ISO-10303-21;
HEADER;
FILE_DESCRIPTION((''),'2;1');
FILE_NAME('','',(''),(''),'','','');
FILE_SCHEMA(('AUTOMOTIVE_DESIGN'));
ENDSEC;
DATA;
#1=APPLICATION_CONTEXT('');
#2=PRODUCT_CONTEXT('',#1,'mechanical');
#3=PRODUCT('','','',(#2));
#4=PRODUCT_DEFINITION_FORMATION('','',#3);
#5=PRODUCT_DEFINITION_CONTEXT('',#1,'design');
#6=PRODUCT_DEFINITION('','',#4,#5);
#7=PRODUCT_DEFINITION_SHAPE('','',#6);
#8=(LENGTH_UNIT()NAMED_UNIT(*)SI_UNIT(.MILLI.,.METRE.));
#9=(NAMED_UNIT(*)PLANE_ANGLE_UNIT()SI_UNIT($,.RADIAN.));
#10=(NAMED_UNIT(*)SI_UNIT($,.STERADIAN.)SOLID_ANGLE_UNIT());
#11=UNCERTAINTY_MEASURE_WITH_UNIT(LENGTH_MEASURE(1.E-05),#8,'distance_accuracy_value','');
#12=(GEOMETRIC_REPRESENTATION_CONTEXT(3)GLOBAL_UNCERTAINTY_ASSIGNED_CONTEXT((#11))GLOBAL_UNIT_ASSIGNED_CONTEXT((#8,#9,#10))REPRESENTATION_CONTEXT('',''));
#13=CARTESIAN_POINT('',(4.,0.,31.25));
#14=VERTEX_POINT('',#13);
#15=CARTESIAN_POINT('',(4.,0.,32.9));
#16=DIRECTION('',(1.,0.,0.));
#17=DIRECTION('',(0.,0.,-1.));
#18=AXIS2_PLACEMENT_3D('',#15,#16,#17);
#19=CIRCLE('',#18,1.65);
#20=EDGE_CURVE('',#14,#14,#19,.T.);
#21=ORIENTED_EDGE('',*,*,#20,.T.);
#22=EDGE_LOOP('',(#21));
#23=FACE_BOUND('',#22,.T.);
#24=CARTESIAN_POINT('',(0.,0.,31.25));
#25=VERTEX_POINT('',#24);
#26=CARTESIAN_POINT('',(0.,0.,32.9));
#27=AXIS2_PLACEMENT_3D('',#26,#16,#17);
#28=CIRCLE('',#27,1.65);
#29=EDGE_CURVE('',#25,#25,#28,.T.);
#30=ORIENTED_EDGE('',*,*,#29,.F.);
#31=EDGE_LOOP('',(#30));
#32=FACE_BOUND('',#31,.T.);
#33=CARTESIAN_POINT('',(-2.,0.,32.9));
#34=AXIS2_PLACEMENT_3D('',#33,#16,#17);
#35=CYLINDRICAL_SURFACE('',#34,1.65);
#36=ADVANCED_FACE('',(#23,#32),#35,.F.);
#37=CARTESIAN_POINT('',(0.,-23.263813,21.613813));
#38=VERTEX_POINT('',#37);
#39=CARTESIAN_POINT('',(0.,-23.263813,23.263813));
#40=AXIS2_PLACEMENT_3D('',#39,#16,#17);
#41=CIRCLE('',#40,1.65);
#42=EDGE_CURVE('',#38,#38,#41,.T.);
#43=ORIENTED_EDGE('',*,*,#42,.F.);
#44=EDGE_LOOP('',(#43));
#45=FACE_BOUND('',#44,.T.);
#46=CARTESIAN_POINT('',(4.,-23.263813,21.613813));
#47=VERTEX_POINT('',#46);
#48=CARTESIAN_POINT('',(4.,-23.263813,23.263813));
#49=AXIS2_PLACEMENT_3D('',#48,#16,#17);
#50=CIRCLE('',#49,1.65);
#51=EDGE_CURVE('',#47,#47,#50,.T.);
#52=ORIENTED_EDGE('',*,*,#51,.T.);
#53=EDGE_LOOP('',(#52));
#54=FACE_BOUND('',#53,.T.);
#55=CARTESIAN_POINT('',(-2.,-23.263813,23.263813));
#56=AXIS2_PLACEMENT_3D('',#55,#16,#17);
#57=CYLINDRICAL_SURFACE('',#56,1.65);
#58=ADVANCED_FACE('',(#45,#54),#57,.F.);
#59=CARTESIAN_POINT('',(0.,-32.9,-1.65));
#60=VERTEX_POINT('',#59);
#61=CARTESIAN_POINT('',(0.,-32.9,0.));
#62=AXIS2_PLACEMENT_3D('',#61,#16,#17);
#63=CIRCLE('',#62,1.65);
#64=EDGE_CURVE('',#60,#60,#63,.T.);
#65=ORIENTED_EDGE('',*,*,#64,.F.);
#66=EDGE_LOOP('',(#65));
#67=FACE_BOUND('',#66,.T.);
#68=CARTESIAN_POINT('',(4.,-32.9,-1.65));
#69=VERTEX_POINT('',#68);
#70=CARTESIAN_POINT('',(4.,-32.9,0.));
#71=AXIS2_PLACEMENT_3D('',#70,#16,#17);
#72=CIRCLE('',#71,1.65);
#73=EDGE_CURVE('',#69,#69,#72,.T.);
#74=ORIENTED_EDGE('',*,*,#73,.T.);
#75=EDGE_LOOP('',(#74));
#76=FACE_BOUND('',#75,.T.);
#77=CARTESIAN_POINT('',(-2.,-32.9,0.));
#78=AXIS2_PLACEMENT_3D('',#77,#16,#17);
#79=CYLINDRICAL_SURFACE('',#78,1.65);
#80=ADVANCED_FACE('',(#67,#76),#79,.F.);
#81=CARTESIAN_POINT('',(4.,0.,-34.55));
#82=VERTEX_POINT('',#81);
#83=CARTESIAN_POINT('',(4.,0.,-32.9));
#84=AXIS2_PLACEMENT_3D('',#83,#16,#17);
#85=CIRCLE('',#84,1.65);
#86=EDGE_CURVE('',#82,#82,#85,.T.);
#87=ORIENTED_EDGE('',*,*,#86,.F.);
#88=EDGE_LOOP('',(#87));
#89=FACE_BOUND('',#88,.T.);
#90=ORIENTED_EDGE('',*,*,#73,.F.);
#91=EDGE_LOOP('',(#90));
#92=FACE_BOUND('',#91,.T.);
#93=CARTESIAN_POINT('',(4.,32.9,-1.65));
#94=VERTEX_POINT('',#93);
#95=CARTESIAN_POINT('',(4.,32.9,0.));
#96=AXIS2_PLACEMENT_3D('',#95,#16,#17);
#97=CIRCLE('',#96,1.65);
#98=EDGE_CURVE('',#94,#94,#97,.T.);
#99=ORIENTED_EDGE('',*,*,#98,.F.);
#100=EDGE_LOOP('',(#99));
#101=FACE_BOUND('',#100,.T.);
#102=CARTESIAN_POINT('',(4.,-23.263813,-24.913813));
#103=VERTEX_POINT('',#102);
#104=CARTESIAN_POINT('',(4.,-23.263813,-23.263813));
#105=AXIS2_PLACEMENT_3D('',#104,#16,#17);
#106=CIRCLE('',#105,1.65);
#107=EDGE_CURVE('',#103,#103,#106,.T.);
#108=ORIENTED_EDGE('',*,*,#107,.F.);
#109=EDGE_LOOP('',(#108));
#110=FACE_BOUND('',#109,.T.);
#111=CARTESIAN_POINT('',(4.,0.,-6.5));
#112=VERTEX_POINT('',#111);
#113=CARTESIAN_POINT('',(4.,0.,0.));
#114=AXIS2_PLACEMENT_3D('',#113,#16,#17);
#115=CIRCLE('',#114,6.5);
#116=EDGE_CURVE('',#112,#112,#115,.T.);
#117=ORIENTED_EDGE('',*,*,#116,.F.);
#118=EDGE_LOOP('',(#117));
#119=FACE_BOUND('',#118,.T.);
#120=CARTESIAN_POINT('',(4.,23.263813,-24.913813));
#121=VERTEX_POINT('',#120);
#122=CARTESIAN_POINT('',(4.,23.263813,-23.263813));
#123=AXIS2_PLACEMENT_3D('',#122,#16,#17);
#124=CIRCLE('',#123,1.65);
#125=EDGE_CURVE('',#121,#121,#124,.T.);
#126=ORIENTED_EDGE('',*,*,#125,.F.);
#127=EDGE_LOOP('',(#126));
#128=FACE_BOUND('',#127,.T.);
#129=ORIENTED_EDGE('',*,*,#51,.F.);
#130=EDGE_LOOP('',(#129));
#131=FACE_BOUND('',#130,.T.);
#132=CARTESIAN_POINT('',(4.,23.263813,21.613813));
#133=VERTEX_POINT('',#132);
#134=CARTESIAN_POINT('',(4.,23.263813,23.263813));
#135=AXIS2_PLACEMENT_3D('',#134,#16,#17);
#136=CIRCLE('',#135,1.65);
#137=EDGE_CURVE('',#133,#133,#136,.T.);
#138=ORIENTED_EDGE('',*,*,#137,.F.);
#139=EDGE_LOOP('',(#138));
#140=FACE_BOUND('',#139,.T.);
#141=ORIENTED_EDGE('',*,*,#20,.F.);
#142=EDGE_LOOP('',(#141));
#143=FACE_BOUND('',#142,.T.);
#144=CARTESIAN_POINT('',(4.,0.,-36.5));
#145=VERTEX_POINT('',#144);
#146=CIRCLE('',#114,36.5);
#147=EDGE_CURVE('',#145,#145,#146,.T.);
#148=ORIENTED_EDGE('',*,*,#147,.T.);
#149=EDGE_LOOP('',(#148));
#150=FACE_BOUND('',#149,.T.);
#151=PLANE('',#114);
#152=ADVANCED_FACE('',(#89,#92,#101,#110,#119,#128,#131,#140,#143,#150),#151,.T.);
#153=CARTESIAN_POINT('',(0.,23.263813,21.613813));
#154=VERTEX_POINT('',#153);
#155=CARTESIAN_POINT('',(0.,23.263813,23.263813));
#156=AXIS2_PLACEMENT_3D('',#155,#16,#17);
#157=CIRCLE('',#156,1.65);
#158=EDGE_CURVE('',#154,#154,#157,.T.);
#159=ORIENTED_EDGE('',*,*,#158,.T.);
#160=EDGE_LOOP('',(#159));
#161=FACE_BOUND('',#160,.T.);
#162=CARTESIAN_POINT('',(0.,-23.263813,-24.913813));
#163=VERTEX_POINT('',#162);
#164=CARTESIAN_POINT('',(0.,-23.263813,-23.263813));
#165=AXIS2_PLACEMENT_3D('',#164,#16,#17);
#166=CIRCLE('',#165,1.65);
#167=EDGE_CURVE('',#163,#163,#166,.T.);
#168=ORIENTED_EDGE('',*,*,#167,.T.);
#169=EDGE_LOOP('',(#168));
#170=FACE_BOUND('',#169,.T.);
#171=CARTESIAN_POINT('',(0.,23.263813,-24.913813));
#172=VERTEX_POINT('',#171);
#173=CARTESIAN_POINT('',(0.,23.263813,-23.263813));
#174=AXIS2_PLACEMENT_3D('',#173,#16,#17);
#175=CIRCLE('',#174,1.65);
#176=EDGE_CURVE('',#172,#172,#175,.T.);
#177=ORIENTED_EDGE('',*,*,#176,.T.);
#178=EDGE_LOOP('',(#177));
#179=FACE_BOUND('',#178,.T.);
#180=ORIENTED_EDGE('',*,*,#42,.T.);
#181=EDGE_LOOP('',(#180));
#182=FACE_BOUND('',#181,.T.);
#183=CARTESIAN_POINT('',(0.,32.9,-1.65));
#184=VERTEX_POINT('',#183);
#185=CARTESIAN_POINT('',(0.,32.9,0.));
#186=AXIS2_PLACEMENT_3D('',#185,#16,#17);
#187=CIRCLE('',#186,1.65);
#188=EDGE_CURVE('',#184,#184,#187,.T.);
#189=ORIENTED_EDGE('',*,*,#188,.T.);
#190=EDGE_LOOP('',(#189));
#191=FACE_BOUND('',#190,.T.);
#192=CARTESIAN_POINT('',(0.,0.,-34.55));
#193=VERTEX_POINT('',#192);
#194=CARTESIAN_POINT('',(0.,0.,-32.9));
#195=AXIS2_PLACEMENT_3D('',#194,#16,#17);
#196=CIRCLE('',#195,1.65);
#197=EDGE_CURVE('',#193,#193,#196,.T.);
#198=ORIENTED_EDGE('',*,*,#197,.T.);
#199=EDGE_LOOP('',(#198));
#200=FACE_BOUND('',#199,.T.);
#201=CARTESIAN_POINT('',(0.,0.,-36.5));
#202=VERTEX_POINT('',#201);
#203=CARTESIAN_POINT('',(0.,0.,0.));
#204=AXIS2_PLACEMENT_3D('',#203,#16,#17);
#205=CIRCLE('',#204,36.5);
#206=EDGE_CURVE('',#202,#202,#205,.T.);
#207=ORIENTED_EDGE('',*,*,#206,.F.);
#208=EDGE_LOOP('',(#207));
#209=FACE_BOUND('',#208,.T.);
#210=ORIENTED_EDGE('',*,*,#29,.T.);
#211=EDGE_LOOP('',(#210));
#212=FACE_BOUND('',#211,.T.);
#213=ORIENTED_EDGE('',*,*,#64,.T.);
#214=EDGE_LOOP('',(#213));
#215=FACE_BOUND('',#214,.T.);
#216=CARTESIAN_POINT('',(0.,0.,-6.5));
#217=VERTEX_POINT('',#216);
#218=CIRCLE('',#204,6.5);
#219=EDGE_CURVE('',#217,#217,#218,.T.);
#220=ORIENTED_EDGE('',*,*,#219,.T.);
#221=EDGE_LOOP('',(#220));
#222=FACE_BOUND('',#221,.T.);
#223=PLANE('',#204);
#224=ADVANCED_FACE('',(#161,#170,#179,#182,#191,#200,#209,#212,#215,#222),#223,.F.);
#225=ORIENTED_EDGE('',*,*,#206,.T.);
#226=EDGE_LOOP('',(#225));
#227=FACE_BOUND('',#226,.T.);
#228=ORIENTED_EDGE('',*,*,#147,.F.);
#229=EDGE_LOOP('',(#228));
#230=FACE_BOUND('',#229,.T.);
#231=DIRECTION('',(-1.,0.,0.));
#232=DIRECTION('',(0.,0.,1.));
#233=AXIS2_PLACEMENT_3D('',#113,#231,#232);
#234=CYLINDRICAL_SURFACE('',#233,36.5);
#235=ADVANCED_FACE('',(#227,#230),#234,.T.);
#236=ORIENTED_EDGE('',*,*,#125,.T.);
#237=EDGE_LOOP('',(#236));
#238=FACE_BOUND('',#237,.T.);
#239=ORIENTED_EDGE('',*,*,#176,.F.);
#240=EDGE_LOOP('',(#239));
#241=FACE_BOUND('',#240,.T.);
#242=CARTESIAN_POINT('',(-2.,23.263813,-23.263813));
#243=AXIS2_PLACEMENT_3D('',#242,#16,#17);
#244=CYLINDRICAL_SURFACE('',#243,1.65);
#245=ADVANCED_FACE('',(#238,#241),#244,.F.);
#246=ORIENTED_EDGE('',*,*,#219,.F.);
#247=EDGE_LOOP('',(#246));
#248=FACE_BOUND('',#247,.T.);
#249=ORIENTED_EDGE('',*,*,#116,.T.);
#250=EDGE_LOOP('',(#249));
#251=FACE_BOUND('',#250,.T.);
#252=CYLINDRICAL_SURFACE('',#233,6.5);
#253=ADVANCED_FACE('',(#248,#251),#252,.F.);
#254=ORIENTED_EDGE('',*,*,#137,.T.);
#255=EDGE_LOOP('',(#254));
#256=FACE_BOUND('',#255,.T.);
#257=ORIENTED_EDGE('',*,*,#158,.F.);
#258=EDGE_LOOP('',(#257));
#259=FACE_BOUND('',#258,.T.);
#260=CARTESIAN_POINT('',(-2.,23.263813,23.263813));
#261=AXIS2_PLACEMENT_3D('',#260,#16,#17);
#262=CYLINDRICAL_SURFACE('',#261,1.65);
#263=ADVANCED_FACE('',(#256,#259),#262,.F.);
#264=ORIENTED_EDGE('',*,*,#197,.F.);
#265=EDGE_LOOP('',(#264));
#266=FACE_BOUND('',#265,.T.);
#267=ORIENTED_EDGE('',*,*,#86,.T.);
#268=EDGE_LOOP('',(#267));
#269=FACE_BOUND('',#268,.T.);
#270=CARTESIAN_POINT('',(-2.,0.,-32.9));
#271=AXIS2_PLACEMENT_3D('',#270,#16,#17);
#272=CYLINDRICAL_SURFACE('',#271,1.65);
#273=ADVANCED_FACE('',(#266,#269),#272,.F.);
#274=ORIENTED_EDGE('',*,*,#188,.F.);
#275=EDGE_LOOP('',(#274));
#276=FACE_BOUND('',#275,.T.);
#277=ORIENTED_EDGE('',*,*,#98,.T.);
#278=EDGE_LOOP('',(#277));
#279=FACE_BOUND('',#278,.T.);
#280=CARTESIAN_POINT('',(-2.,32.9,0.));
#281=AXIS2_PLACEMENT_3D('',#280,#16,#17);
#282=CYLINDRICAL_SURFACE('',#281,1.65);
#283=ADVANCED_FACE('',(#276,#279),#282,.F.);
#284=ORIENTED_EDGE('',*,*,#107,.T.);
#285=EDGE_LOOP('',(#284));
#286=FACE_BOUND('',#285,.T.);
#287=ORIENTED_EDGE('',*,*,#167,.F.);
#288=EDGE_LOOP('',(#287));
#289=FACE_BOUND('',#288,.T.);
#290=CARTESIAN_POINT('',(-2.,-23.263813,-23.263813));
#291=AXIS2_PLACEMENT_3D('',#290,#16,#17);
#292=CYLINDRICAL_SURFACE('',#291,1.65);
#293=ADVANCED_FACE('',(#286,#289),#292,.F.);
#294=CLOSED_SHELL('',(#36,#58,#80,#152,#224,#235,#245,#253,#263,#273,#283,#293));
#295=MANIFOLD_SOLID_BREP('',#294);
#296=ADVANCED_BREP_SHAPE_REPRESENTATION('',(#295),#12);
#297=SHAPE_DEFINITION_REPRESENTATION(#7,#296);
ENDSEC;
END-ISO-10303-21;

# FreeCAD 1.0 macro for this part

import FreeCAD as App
import Part
import Sketcher
Q = App.Units.Quantity

doc = App.newDocument("Part")
body = doc.addObject("PartDesign::Body", "Body")

# Sketch on YZ plane
sketch1 = body.newObject("Sketcher::SketchObject", "Sketch")
sketch1.AttachmentSupport = (doc.getObject("YZ_Plane"), [""])
sketch1.MapMode = "FlatFace"
sketch1.addGeometry([
    Part.Circle(App.Vector(0, 0, 0), App.Vector(0, 0, 1), 36),
    Part.Circle(App.Vector(0, 0, 0), App.Vector(0, 0, 1), 6),
], False)
sketch1.addConstraint([
    Sketcher.Constraint("Coincident", 0, 3, -1, 1),
    Sketcher.Constraint("Coincident", 1, 3, -1, 1),
    Sketcher.Constraint("Diameter", 0, Q("73 mm")),
    Sketcher.Constraint("Diameter", 1, Q("13 mm")),
])
pad1 = body.newObject("PartDesign::Pad", "Pad")
pad1.Profile = sketch1
pad1.Length = 4

# Sketch on YZ plane
sketch2 = body.newObject("Sketcher::SketchObject", "Sketch001")
sketch2.AttachmentSupport = (doc.getObject("YZ_Plane"), [""])
sketch2.MapMode = "FlatFace"
sketch2.AttachmentOffset = App.Placement(App.Vector(0, 0, 4), App.Rotation())
sketch2.addGeometry([
    Part.Circle(App.Vector(0, -32.9, 0), App.Vector(0, 0, 1), 1.6),  # 0
    Part.Circle(App.Vector(-23.3, -23.3, 0), App.Vector(0, 0, 1), 1.6),  # 1
    Part.Circle(App.Vector(-32.9, 0, 0), App.Vector(0, 0, 1), 1.6),  # 2
    Part.Circle(App.Vector(-23.3, 23.3, 0), App.Vector(0, 0, 1), 1.6),  # 3
    Part.Circle(App.Vector(0, 32.9, 0), App.Vector(0, 0, 1), 1.6),  # 4
    Part.Circle(App.Vector(23.3, 23.3, 0), App.Vector(0, 0, 1), 1.6),  # 5
    Part.Circle(App.Vector(32.9, 0, 0), App.Vector(0, 0, 1), 1.6),  # 6
    Part.Circle(App.Vector(23.3, -23.3, 0), App.Vector(0, 0, 1), 1.6),  # 7
], False)
sketch2.addConstraint([
    Sketcher.Constraint("Equal", 0, 1),
    Sketcher.Constraint("Equal", 1, 2),
    Sketcher.Constraint("Equal", 2, 3),
    Sketcher.Constraint("Equal", 3, 4),
    Sketcher.Constraint("Equal", 4, 5),
    Sketcher.Constraint("Equal", 5, 6),
    Sketcher.Constraint("Equal", 6, 7),
    Sketcher.Constraint("Symmetric", 0, 3, 4, 3, -1, 1),
    Sketcher.Constraint("Symmetric", 1, 3, 5, 3, -1, 1),
    Sketcher.Constraint("Symmetric", 2, 3, 6, 3, -1, 1),
    Sketcher.Constraint("Symmetric", 3, 3, 7, 3, -1, 1),
    Sketcher.Constraint("Symmetric", 3, 3, 5, 3, -2),
    Sketcher.Constraint("PointOnObject", 0, 3, -2),
    Sketcher.Constraint("PointOnObject", 2, 3, -1),
    Sketcher.Constraint("Diameter", 0, Q("3.3 mm")),
    Sketcher.Constraint("DistanceY", 0, 3, -1, 1, Q("32.9 mm")),
    Sketcher.Constraint("DistanceX", 2, 3, -1, 1, Q("32.9 mm")),
    Sketcher.Constraint("DistanceX", 1, 3, -1, 1, Q("23.263813 mm")),
    Sketcher.Constraint("DistanceY", 1, 3, -1, 1, Q("23.263813 mm")),
])
pocket1 = body.newObject("PartDesign::Pocket", "Pocket")
pocket1.Profile = sketch2
pocket1.Length = 6

doc.recompute()
